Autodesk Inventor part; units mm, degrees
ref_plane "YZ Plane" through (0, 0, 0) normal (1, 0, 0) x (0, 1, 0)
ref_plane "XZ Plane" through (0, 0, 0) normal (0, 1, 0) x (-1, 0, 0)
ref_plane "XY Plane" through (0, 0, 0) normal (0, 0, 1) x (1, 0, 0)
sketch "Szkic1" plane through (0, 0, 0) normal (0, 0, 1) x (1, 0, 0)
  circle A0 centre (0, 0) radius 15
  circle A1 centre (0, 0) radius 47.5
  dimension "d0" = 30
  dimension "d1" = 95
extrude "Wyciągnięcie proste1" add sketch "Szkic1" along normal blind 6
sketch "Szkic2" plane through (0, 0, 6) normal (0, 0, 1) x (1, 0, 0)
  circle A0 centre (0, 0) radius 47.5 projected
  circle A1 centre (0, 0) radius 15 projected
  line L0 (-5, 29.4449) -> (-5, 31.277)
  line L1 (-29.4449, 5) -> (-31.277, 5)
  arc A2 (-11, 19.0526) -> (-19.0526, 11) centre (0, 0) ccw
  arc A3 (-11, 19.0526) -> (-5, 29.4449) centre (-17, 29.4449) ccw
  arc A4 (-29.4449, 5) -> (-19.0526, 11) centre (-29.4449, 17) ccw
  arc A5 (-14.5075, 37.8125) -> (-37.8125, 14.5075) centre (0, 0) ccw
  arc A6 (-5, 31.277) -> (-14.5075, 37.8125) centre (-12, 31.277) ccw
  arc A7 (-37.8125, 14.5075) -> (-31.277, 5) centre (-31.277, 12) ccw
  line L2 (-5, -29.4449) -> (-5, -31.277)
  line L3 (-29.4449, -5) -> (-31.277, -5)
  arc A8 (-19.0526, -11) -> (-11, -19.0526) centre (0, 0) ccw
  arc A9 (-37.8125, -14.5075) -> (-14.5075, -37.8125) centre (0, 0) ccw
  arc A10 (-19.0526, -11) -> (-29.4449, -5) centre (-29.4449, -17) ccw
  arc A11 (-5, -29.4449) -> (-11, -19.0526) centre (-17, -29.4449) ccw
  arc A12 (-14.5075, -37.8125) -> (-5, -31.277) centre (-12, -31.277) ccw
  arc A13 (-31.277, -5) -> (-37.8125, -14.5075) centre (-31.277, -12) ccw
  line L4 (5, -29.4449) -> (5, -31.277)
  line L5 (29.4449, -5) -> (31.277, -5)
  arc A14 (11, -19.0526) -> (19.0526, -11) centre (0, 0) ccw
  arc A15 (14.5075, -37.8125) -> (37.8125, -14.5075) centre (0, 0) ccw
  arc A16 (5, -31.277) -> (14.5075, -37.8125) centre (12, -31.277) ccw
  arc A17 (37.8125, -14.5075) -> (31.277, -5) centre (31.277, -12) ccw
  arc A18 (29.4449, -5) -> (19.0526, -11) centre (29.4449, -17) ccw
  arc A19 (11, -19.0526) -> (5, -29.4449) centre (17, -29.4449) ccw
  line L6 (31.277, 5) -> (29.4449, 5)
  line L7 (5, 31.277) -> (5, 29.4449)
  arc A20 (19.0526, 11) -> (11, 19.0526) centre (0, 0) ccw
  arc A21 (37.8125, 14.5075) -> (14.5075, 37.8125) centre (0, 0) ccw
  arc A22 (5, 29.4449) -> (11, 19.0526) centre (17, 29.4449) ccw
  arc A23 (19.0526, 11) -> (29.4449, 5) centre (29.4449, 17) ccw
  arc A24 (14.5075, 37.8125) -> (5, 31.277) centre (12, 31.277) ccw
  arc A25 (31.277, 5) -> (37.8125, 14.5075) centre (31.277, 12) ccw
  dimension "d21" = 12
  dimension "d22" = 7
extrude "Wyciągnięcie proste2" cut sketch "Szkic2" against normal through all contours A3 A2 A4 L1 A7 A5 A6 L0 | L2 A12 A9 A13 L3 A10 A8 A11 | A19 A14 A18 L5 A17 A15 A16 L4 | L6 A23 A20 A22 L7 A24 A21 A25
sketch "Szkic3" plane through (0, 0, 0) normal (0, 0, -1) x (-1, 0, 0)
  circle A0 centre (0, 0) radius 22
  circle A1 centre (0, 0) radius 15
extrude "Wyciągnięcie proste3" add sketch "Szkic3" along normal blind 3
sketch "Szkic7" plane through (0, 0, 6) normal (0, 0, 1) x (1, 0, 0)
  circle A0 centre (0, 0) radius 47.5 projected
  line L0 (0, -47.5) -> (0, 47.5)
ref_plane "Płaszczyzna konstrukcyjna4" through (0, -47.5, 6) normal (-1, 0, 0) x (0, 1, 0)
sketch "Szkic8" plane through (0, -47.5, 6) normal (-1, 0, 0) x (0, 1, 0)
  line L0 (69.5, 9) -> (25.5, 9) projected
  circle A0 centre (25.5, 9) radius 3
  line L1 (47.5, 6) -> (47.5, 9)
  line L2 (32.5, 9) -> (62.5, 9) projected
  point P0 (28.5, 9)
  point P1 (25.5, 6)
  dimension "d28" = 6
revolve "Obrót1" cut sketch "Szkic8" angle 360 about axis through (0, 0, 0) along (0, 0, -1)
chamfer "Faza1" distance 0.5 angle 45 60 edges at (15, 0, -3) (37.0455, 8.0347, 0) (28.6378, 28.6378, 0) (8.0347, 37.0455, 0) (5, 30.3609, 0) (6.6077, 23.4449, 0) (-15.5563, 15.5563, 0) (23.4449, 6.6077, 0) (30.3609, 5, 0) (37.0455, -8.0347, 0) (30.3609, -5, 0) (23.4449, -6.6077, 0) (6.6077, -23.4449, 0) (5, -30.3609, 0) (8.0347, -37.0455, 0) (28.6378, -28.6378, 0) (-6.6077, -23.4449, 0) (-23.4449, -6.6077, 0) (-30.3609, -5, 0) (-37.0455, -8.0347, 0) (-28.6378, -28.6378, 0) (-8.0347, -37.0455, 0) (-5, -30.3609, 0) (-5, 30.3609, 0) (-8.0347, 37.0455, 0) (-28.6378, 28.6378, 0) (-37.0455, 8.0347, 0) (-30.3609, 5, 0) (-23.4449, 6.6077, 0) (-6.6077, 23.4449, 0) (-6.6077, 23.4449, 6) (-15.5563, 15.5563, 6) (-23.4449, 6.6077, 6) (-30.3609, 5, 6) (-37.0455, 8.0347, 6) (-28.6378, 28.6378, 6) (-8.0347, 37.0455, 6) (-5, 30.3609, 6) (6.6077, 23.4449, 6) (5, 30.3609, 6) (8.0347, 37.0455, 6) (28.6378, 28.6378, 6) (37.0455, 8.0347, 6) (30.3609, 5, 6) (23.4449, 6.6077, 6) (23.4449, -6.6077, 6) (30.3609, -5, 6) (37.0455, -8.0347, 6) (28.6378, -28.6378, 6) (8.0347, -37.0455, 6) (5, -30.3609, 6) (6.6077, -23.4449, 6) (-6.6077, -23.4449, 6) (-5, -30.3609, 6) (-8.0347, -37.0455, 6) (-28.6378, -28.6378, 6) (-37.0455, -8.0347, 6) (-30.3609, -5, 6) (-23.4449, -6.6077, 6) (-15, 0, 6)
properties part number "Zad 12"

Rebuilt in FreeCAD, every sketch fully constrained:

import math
import FreeCAD as App
import Part
import Sketcher

V = App.Vector
Q = App.Units.Quantity


def edges_at(feature, points):
    """Names of the edges that pass closest to the given points."""
    edges = feature.Shape.Edges
    near = lambda p: min(range(len(edges)), key=lambda i: edges[i].distToShape(Part.Vertex(*p))[0])
    return sorted({f"Edge{near(p) + 1}" for p in points})

doc = App.newDocument("Part")
params = doc.addObject("Spreadsheet::Sheet", "Params")
for row, (alias, value) in enumerate([
    ("sketch1_diameter", "95 mm"),
    ("sketch1_diameter2", "30 mm"),
    ("pad1_length", "6 mm"),
    ("sketch2_radius", "12 mm"),
    ("sketch2_radius2", "7 mm"),
    ("sketch2_radius3", "22 mm"),
    ("sketch2_radius4", "40.5 mm"),
    ("sketch3_diameter", "44 mm"),
    ("sketch3_diameter2", "30 mm"),
    ("pad2_length", "3 mm"),
    ("sketch4_diameter", "6 mm"),
    ("groove_angle", "360 deg"),
    ("chamfer_size", "0.5 mm"),
], start=1):
    params.set(f"A{row}", alias)
    params.set(f"B{row}", "=" + value)
    params.setAlias(f"B{row}", alias)

body = doc.addObject("PartDesign::Body", "Body")

# Sketch on XY plane
sketch1 = body.newObject("Sketcher::SketchObject", "Sketch")
sketch1.AttachmentSupport = (doc.getObject("XY_Plane"), [""])
sketch1.MapMode = "FlatFace"
sketch1.addGeometry(Part.Circle(V(0, 0, 0), V(0, 0, 1), 48), False)
sketch1.addGeometry(Part.Circle(V(0, 0, 0), V(0, 0, 1), 15), False)
sketch1.addConstraint(Sketcher.Constraint("Coincident", 0, 3, -1, 1))
sketch1.addConstraint(Sketcher.Constraint("Coincident", 1, 3, -1, 1))
sketch1.addConstraint(Sketcher.Constraint("Diameter", 0, Q("95 mm")))
sketch1.addConstraint(Sketcher.Constraint("Diameter", 1, Q("30 mm")))
sketch1.setExpression("Constraints[2]", "Params.sketch1_diameter")
sketch1.setExpression("Constraints[3]", "Params.sketch1_diameter2")
pad1 = body.newObject("PartDesign::Pad", "Pad")
pad1.Profile = sketch1
pad1.setExpression("Length", "Params.pad1_length")

# Sketch on XY plane
sketch2 = body.newObject("Sketcher::SketchObject", "Sketch001")
sketch2.AttachmentSupport = (doc.getObject("XY_Plane"), [""])
sketch2.MapMode = "FlatFace"
sketch2.AttachmentOffset = App.Placement(V(0, 0, 6), App.Rotation())
sketch2.addGeometry(Part.ArcOfCircle(Part.Circle(V(-17, 29.4, 0), V(0, 0, 1), 12), math.radians(-60), math.radians(0)), False)
sketch2.addGeometry(Part.LineSegment(V(-5, 29.4, 0), V(-5, 31.3, 0)), False)
sketch2.addGeometry(Part.ArcOfCircle(Part.Circle(V(-12, 31.3, 0), V(0, 0, 1), 7), math.radians(0), math.radians(111)), False)
sketch2.addGeometry(Part.ArcOfCircle(Part.Circle(V(0, 0, 0), V(0, 0, 1), 40.5), math.radians(111), math.radians(159)), False)
sketch2.addGeometry(Part.ArcOfCircle(Part.Circle(V(-31.3, 12, 0), V(0, 0, 1), 7), math.radians(159), math.radians(270)), False)
sketch2.addGeometry(Part.LineSegment(V(-31.3, 5, 0), V(-29.4, 5, 0)), False)
sketch2.addGeometry(Part.ArcOfCircle(Part.Circle(V(-29.4, 17, 0), V(0, 0, 1), 12), math.radians(-90), math.radians(-30)), False)
sketch2.addGeometry(Part.ArcOfCircle(Part.Circle(V(0, 0, 0), V(0, 0, 1), 22), math.radians(120), math.radians(150)), False)
sketch2.addGeometry(Part.LineSegment(V(-5, -31.3, 0), V(-5, -29.4, 0)), False)
sketch2.addGeometry(Part.ArcOfCircle(Part.Circle(V(-17, -29.4, 0), V(0, 0, 1), 12), math.radians(0), math.radians(60)), False)
sketch2.addGeometry(Part.ArcOfCircle(Part.Circle(V(0, 0, 0), V(0, 0, 1), 22), math.radians(-150), math.radians(-120)), False)
sketch2.addGeometry(Part.ArcOfCircle(Part.Circle(V(-29.4, -17, 0), V(0, 0, 1), 12), math.radians(30), math.radians(90)), False)
sketch2.addGeometry(Part.LineSegment(V(-29.4, -5, 0), V(-31.3, -5, 0)), False)
sketch2.addGeometry(Part.ArcOfCircle(Part.Circle(V(-31.3, -12, 0), V(0, 0, 1), 7), math.radians(90), math.radians(201)), False)
sketch2.addGeometry(Part.ArcOfCircle(Part.Circle(V(0, 0, 0), V(0, 0, 1), 40.5), math.radians(-159), math.radians(-111)), False)
sketch2.addGeometry(Part.ArcOfCircle(Part.Circle(V(-12, -31.3, 0), V(0, 0, 1), 7), math.radians(-111), math.radians(0)), False)
sketch2.addGeometry(Part.ArcOfCircle(Part.Circle(V(17, -29.4, 0), V(0, 0, 1), 12), math.radians(120), math.radians(180)), False)
sketch2.addGeometry(Part.LineSegment(V(5, -29.4, 0), V(5, -31.3, 0)), False)
sketch2.addGeometry(Part.ArcOfCircle(Part.Circle(V(12, -31.3, 0), V(0, 0, 1), 7), math.radians(180), math.radians(291)), False)
sketch2.addGeometry(Part.ArcOfCircle(Part.Circle(V(0, 0, 0), V(0, 0, 1), 40.5), math.radians(-69), math.radians(-21)), False)
sketch2.addGeometry(Part.ArcOfCircle(Part.Circle(V(31.3, -12, 0), V(0, 0, 1), 7), math.radians(-21), math.radians(90)), False)
sketch2.addGeometry(Part.LineSegment(V(31.3, -5, 0), V(29.4, -5, 0)), False)
sketch2.addGeometry(Part.ArcOfCircle(Part.Circle(V(29.4, -17, 0), V(0, 0, 1), 12), math.radians(90), math.radians(150)), False)
sketch2.addGeometry(Part.ArcOfCircle(Part.Circle(V(0, 0, 0), V(0, 0, 1), 22), math.radians(-60), math.radians(-30)), False)
sketch2.addGeometry(Part.LineSegment(V(29.4, 5, 0), V(31.3, 5, 0)), False)
sketch2.addGeometry(Part.ArcOfCircle(Part.Circle(V(31.3, 12, 0), V(0, 0, 1), 7), math.radians(-90), math.radians(21)), False)
sketch2.addGeometry(Part.ArcOfCircle(Part.Circle(V(0, 0, 0), V(0, 0, 1), 40.5), math.radians(21), math.radians(69)), False)
sketch2.addGeometry(Part.ArcOfCircle(Part.Circle(V(12, 31.3, 0), V(0, 0, 1), 7), math.radians(69), math.radians(180)), False)
sketch2.addGeometry(Part.LineSegment(V(5, 31.3, 0), V(5, 29.4, 0)), False)
sketch2.addGeometry(Part.ArcOfCircle(Part.Circle(V(17, 29.4, 0), V(0, 0, 1), 12), math.radians(180), math.radians(240)), False)
sketch2.addGeometry(Part.ArcOfCircle(Part.Circle(V(0, 0, 0), V(0, 0, 1), 22), math.radians(30), math.radians(60)), False)
sketch2.addGeometry(Part.ArcOfCircle(Part.Circle(V(29.4, 17, 0), V(0, 0, 1), 12), math.radians(-150), math.radians(-90)), False)
sketch2.addConstraint(Sketcher.Constraint("Tangent", 0, 2, 1, 1))
sketch2.addConstraint(Sketcher.Constraint("Tangent", 1, 2, 2, 1))
sketch2.addConstraint(Sketcher.Constraint("Tangent", 2, 2, 3, 1))
sketch2.addConstraint(Sketcher.Constraint("Tangent", 3, 2, 4, 1))
sketch2.addConstraint(Sketcher.Constraint("Tangent", 4, 2, 5, 1))
sketch2.addConstraint(Sketcher.Constraint("Tangent", 5, 2, 6, 1))
sketch2.addConstraint(Sketcher.Constraint("Tangent", 6, 2, 7, 2))
sketch2.addConstraint(Sketcher.Constraint("Tangent", 7, 1, 0, 1))
sketch2.addConstraint(Sketcher.Constraint("Tangent", 8, 2, 9, 1))
sketch2.addConstraint(Sketcher.Constraint("Tangent", 9, 2, 10, 2))
sketch2.addConstraint(Sketcher.Constraint("Tangent", 10, 1, 11, 1))
sketch2.addConstraint(Sketcher.Constraint("Tangent", 11, 2, 12, 1))
sketch2.addConstraint(Sketcher.Constraint("Tangent", 12, 2, 13, 1))
sketch2.addConstraint(Sketcher.Constraint("Tangent", 13, 2, 14, 1))
sketch2.addConstraint(Sketcher.Constraint("Tangent", 14, 2, 15, 1))
sketch2.addConstraint(Sketcher.Constraint("Tangent", 15, 2, 8, 1))
sketch2.addConstraint(Sketcher.Constraint("Tangent", 16, 2, 17, 1))
sketch2.addConstraint(Sketcher.Constraint("Tangent", 17, 2, 18, 1))
sketch2.addConstraint(Sketcher.Constraint("Tangent", 18, 2, 19, 1))
sketch2.addConstraint(Sketcher.Constraint("Tangent", 19, 2, 20, 1))
sketch2.addConstraint(Sketcher.Constraint("Tangent", 20, 2, 21, 1))
sketch2.addConstraint(Sketcher.Constraint("Tangent", 21, 2, 22, 1))
sketch2.addConstraint(Sketcher.Constraint("Tangent", 22, 2, 23, 2))
sketch2.addConstraint(Sketcher.Constraint("Tangent", 23, 1, 16, 1))
sketch2.addConstraint(Sketcher.Constraint("Tangent", 24, 2, 25, 1))
sketch2.addConstraint(Sketcher.Constraint("Tangent", 25, 2, 26, 1))
sketch2.addConstraint(Sketcher.Constraint("Tangent", 26, 2, 27, 1))
sketch2.addConstraint(Sketcher.Constraint("Tangent", 27, 2, 28, 1))
sketch2.addConstraint(Sketcher.Constraint("Tangent", 28, 2, 29, 1))
sketch2.addConstraint(Sketcher.Constraint("Tangent", 29, 2, 30, 2))
sketch2.addConstraint(Sketcher.Constraint("Tangent", 30, 1, 31, 1))
sketch2.addConstraint(Sketcher.Constraint("Tangent", 31, 2, 24, 1))
sketch2.addConstraint(Sketcher.Constraint("Vertical", 1))
sketch2.addConstraint(Sketcher.Constraint("Horizontal", 5))
sketch2.addConstraint(Sketcher.Constraint("Vertical", 8))
sketch2.addConstraint(Sketcher.Constraint("Horizontal", 12))
sketch2.addConstraint(Sketcher.Constraint("Vertical", 17))
sketch2.addConstraint(Sketcher.Constraint("Horizontal", 21))
sketch2.addConstraint(Sketcher.Constraint("Horizontal", 24))
sketch2.addConstraint(Sketcher.Constraint("Vertical", 28))
sketch2.addConstraint(Sketcher.Constraint("Coincident", 3, 3, -1, 1))
sketch2.addConstraint(Sketcher.Constraint("Coincident", 7, 3, -1, 1))
sketch2.addConstraint(Sketcher.Constraint("Coincident", 10, 3, -1, 1))
sketch2.addConstraint(Sketcher.Constraint("Coincident", 14, 3, -1, 1))
sketch2.addConstraint(Sketcher.Constraint("Coincident", 19, 3, -1, 1))
sketch2.addConstraint(Sketcher.Constraint("Coincident", 23, 3, -1, 1))
sketch2.addConstraint(Sketcher.Constraint("Coincident", 26, 3, -1, 1))
sketch2.addConstraint(Sketcher.Constraint("Coincident", 30, 3, -1, 1))
sketch2.addConstraint(Sketcher.Constraint("Equal", 2, 4))
sketch2.addConstraint(Sketcher.Constraint("Equal", 0, 6))
sketch2.addConstraint(Sketcher.Constraint("Equal", 6, 9))
sketch2.addConstraint(Sketcher.Constraint("Equal", 7, 10))
sketch2.addConstraint(Sketcher.Constraint("Equal", 9, 11))
sketch2.addConstraint(Sketcher.Constraint("Equal", 4, 13))
sketch2.addConstraint(Sketcher.Constraint("Equal", 3, 14))
sketch2.addConstraint(Sketcher.Constraint("Equal", 13, 15))
sketch2.addConstraint(Sketcher.Constraint("Equal", 11, 16))
sketch2.addConstraint(Sketcher.Constraint("Equal", 15, 18))
sketch2.addConstraint(Sketcher.Constraint("Equal", 14, 19))
sketch2.addConstraint(Sketcher.Constraint("Equal", 18, 20))
sketch2.addConstraint(Sketcher.Constraint("Equal", 16, 22))
sketch2.addConstraint(Sketcher.Constraint("Equal", 10, 23))
sketch2.addConstraint(Sketcher.Constraint("Equal", 20, 25))
sketch2.addConstraint(Sketcher.Constraint("Equal", 19, 26))
sketch2.addConstraint(Sketcher.Constraint("Equal", 25, 27))
sketch2.addConstraint(Sketcher.Constraint("Equal", 22, 29))
sketch2.addConstraint(Sketcher.Constraint("Equal", 23, 30))
sketch2.addConstraint(Sketcher.Constraint("Equal", 29, 31))
sketch2.addConstraint(Sketcher.Constraint("Horizontal", 9, 3, 16, 3))
sketch2.addConstraint(Sketcher.Constraint("Horizontal", 13, 3, 20, 3))
sketch2.addConstraint(Sketcher.Constraint("Horizontal", 4, 3, 25, 3))
sketch2.addConstraint(Sketcher.Constraint("Horizontal", 2, 3, 27, 3))
sketch2.addConstraint(Sketcher.Constraint("Vertical", 0, 3, 9, 3))
sketch2.addConstraint(Sketcher.Constraint("Vertical", 6, 3, 11, 3))
sketch2.addConstraint(Sketcher.Constraint("Equal", 24, 1))
sketch2.addConstraint(Sketcher.Constraint("Radius", 0, Q("12 mm")))
sketch2.addConstraint(Sketcher.Constraint("Radius", 2, Q("7 mm")))
sketch2.addConstraint(Sketcher.Constraint("DistanceX", 2, 3, -1, 1, Q("12 mm")))
sketch2.addConstraint(Sketcher.Constraint("Radius", 7, Q("22 mm")))
sketch2.addConstraint(Sketcher.Constraint("Radius", 3, Q("40.5 mm")))
sketch2.setExpression("Constraints[75]", "Params.sketch2_radius")
sketch2.setExpression("Constraints[76]", "Params.sketch2_radius2")
sketch2.setExpression("Constraints[78]", "Params.sketch2_radius3")
sketch2.setExpression("Constraints[79]", "Params.sketch2_radius4")
pocket1 = body.newObject("PartDesign::Pocket", "Pocket")
pocket1.Profile = sketch2
pocket1.Type = "ThroughAll"

# Sketch on XY plane
sketch3 = body.newObject("Sketcher::SketchObject", "Sketch002")
sketch3.AttachmentSupport = (doc.getObject("XY_Plane"), [""])
sketch3.MapMode = "FlatFace"
sketch3.addGeometry(Part.Circle(V(0, 0, 0), V(0, 0, 1), 22), False)
sketch3.addGeometry(Part.Circle(V(0, 0, 0), V(0, 0, 1), 15), False)
sketch3.addConstraint(Sketcher.Constraint("Coincident", 0, 3, -1, 1))
sketch3.addConstraint(Sketcher.Constraint("Coincident", 1, 3, -1, 1))
sketch3.addConstraint(Sketcher.Constraint("Diameter", 0, Q("44 mm")))
sketch3.addConstraint(Sketcher.Constraint("Diameter", 1, Q("30 mm")))
sketch3.setExpression("Constraints[2]", "Params.sketch3_diameter")
sketch3.setExpression("Constraints[3]", "Params.sketch3_diameter2")
pad2 = body.newObject("PartDesign::Pad", "Pad001")
pad2.Profile = sketch3
pad2.setExpression("Length", "Params.pad2_length")
pad2.Reversed = True

# Sketch on YZ plane
sketch4 = body.newObject("Sketcher::SketchObject", "Sketch003")
sketch4.AttachmentSupport = (doc.getObject("YZ_Plane"), [""])
sketch4.MapMode = "FlatFace"
sketch4.addGeometry(Part.Circle(V(-22, -3, 0), V(0, 0, 1), 3), False)
sketch4.addConstraint(Sketcher.Constraint("Diameter", 0, Q("6 mm")))
sketch4.addConstraint(Sketcher.Constraint("DistanceX", 0, 3, -1, 1, Q("22 mm")))
sketch4.addConstraint(Sketcher.Constraint("DistanceY", 0, 3, -1, 1, Q("3 mm")))
sketch4.setExpression("Constraints[0]", "Params.sketch4_diameter")
groove = body.newObject("PartDesign::Groove", "Groove")
groove.Profile = sketch4
groove.ReferenceAxis = (sketch4, ["V_Axis"])
groove.setExpression("Angle", "Params.groove_angle")
doc.recompute()

chamfer = body.newObject("PartDesign::Chamfer", "Chamfer")
chamfer.Base = (groove, edges_at(groove, [
    (15, 0, -3),
    (37.045, 8.035, 0),
    (28.638, 28.638, 0),
    (8.035, 37.045, 0),
    (5, 30.361, 0),
    (6.608, 23.445, 0),
    (-15.556, 15.556, 0),
    (23.445, 6.608, 0),
    (30.361, 5, 0),
    (37.045, -8.035, 0),
    (30.361, -5, 0),
    (23.445, -6.608, 0),
    (6.608, -23.445, 0),
    (5, -30.361, 0),
    (8.035, -37.045, 0),
    (28.638, -28.638, 0),
    (-6.608, -23.445, 0),
    (-23.445, -6.608, 0),
    (-30.361, -5, 0),
    (-37.045, -8.035, 0),
    (-28.638, -28.638, 0),
    (-8.035, -37.045, 0),
    (-5, -30.361, 0),
    (-5, 30.361, 0),
    (-8.035, 37.045, 0),
    (-28.638, 28.638, 0),
    (-37.045, 8.035, 0),
    (-30.361, 5, 0),
    (-23.445, 6.608, 0),
    (-6.608, 23.445, 0),
    (-6.608, 23.445, 6),
    (-15.556, 15.556, 6),
    (-23.445, 6.608, 6),
    (-30.361, 5, 6),
    (-37.045, 8.035, 6),
    (-28.638, 28.638, 6),
    (-8.035, 37.045, 6),
    (-5, 30.361, 6),
    (6.608, 23.445, 6),
    (5, 30.361, 6),
    (8.035, 37.045, 6),
    (28.638, 28.638, 6),
    (37.045, 8.035, 6),
    (30.361, 5, 6),
    (23.445, 6.608, 6),
    (23.445, -6.608, 6),
    (30.361, -5, 6),
    (37.045, -8.035, 6),
    (28.638, -28.638, 6),
    (8.035, -37.045, 6),
    (5, -30.361, 6),
    (6.608, -23.445, 6),
    (-6.608, -23.445, 6),
    (-5, -30.361, 6),
    (-8.035, -37.045, 6),
    (-28.638, -28.638, 6),
    (-37.045, -8.035, 6),
    (-30.361, -5, 6),
    (-23.445, -6.608, 6),
    (-15, 0, 6),
]))
chamfer.setExpression("Size", "Params.chamfer_size")

doc.recompute()
